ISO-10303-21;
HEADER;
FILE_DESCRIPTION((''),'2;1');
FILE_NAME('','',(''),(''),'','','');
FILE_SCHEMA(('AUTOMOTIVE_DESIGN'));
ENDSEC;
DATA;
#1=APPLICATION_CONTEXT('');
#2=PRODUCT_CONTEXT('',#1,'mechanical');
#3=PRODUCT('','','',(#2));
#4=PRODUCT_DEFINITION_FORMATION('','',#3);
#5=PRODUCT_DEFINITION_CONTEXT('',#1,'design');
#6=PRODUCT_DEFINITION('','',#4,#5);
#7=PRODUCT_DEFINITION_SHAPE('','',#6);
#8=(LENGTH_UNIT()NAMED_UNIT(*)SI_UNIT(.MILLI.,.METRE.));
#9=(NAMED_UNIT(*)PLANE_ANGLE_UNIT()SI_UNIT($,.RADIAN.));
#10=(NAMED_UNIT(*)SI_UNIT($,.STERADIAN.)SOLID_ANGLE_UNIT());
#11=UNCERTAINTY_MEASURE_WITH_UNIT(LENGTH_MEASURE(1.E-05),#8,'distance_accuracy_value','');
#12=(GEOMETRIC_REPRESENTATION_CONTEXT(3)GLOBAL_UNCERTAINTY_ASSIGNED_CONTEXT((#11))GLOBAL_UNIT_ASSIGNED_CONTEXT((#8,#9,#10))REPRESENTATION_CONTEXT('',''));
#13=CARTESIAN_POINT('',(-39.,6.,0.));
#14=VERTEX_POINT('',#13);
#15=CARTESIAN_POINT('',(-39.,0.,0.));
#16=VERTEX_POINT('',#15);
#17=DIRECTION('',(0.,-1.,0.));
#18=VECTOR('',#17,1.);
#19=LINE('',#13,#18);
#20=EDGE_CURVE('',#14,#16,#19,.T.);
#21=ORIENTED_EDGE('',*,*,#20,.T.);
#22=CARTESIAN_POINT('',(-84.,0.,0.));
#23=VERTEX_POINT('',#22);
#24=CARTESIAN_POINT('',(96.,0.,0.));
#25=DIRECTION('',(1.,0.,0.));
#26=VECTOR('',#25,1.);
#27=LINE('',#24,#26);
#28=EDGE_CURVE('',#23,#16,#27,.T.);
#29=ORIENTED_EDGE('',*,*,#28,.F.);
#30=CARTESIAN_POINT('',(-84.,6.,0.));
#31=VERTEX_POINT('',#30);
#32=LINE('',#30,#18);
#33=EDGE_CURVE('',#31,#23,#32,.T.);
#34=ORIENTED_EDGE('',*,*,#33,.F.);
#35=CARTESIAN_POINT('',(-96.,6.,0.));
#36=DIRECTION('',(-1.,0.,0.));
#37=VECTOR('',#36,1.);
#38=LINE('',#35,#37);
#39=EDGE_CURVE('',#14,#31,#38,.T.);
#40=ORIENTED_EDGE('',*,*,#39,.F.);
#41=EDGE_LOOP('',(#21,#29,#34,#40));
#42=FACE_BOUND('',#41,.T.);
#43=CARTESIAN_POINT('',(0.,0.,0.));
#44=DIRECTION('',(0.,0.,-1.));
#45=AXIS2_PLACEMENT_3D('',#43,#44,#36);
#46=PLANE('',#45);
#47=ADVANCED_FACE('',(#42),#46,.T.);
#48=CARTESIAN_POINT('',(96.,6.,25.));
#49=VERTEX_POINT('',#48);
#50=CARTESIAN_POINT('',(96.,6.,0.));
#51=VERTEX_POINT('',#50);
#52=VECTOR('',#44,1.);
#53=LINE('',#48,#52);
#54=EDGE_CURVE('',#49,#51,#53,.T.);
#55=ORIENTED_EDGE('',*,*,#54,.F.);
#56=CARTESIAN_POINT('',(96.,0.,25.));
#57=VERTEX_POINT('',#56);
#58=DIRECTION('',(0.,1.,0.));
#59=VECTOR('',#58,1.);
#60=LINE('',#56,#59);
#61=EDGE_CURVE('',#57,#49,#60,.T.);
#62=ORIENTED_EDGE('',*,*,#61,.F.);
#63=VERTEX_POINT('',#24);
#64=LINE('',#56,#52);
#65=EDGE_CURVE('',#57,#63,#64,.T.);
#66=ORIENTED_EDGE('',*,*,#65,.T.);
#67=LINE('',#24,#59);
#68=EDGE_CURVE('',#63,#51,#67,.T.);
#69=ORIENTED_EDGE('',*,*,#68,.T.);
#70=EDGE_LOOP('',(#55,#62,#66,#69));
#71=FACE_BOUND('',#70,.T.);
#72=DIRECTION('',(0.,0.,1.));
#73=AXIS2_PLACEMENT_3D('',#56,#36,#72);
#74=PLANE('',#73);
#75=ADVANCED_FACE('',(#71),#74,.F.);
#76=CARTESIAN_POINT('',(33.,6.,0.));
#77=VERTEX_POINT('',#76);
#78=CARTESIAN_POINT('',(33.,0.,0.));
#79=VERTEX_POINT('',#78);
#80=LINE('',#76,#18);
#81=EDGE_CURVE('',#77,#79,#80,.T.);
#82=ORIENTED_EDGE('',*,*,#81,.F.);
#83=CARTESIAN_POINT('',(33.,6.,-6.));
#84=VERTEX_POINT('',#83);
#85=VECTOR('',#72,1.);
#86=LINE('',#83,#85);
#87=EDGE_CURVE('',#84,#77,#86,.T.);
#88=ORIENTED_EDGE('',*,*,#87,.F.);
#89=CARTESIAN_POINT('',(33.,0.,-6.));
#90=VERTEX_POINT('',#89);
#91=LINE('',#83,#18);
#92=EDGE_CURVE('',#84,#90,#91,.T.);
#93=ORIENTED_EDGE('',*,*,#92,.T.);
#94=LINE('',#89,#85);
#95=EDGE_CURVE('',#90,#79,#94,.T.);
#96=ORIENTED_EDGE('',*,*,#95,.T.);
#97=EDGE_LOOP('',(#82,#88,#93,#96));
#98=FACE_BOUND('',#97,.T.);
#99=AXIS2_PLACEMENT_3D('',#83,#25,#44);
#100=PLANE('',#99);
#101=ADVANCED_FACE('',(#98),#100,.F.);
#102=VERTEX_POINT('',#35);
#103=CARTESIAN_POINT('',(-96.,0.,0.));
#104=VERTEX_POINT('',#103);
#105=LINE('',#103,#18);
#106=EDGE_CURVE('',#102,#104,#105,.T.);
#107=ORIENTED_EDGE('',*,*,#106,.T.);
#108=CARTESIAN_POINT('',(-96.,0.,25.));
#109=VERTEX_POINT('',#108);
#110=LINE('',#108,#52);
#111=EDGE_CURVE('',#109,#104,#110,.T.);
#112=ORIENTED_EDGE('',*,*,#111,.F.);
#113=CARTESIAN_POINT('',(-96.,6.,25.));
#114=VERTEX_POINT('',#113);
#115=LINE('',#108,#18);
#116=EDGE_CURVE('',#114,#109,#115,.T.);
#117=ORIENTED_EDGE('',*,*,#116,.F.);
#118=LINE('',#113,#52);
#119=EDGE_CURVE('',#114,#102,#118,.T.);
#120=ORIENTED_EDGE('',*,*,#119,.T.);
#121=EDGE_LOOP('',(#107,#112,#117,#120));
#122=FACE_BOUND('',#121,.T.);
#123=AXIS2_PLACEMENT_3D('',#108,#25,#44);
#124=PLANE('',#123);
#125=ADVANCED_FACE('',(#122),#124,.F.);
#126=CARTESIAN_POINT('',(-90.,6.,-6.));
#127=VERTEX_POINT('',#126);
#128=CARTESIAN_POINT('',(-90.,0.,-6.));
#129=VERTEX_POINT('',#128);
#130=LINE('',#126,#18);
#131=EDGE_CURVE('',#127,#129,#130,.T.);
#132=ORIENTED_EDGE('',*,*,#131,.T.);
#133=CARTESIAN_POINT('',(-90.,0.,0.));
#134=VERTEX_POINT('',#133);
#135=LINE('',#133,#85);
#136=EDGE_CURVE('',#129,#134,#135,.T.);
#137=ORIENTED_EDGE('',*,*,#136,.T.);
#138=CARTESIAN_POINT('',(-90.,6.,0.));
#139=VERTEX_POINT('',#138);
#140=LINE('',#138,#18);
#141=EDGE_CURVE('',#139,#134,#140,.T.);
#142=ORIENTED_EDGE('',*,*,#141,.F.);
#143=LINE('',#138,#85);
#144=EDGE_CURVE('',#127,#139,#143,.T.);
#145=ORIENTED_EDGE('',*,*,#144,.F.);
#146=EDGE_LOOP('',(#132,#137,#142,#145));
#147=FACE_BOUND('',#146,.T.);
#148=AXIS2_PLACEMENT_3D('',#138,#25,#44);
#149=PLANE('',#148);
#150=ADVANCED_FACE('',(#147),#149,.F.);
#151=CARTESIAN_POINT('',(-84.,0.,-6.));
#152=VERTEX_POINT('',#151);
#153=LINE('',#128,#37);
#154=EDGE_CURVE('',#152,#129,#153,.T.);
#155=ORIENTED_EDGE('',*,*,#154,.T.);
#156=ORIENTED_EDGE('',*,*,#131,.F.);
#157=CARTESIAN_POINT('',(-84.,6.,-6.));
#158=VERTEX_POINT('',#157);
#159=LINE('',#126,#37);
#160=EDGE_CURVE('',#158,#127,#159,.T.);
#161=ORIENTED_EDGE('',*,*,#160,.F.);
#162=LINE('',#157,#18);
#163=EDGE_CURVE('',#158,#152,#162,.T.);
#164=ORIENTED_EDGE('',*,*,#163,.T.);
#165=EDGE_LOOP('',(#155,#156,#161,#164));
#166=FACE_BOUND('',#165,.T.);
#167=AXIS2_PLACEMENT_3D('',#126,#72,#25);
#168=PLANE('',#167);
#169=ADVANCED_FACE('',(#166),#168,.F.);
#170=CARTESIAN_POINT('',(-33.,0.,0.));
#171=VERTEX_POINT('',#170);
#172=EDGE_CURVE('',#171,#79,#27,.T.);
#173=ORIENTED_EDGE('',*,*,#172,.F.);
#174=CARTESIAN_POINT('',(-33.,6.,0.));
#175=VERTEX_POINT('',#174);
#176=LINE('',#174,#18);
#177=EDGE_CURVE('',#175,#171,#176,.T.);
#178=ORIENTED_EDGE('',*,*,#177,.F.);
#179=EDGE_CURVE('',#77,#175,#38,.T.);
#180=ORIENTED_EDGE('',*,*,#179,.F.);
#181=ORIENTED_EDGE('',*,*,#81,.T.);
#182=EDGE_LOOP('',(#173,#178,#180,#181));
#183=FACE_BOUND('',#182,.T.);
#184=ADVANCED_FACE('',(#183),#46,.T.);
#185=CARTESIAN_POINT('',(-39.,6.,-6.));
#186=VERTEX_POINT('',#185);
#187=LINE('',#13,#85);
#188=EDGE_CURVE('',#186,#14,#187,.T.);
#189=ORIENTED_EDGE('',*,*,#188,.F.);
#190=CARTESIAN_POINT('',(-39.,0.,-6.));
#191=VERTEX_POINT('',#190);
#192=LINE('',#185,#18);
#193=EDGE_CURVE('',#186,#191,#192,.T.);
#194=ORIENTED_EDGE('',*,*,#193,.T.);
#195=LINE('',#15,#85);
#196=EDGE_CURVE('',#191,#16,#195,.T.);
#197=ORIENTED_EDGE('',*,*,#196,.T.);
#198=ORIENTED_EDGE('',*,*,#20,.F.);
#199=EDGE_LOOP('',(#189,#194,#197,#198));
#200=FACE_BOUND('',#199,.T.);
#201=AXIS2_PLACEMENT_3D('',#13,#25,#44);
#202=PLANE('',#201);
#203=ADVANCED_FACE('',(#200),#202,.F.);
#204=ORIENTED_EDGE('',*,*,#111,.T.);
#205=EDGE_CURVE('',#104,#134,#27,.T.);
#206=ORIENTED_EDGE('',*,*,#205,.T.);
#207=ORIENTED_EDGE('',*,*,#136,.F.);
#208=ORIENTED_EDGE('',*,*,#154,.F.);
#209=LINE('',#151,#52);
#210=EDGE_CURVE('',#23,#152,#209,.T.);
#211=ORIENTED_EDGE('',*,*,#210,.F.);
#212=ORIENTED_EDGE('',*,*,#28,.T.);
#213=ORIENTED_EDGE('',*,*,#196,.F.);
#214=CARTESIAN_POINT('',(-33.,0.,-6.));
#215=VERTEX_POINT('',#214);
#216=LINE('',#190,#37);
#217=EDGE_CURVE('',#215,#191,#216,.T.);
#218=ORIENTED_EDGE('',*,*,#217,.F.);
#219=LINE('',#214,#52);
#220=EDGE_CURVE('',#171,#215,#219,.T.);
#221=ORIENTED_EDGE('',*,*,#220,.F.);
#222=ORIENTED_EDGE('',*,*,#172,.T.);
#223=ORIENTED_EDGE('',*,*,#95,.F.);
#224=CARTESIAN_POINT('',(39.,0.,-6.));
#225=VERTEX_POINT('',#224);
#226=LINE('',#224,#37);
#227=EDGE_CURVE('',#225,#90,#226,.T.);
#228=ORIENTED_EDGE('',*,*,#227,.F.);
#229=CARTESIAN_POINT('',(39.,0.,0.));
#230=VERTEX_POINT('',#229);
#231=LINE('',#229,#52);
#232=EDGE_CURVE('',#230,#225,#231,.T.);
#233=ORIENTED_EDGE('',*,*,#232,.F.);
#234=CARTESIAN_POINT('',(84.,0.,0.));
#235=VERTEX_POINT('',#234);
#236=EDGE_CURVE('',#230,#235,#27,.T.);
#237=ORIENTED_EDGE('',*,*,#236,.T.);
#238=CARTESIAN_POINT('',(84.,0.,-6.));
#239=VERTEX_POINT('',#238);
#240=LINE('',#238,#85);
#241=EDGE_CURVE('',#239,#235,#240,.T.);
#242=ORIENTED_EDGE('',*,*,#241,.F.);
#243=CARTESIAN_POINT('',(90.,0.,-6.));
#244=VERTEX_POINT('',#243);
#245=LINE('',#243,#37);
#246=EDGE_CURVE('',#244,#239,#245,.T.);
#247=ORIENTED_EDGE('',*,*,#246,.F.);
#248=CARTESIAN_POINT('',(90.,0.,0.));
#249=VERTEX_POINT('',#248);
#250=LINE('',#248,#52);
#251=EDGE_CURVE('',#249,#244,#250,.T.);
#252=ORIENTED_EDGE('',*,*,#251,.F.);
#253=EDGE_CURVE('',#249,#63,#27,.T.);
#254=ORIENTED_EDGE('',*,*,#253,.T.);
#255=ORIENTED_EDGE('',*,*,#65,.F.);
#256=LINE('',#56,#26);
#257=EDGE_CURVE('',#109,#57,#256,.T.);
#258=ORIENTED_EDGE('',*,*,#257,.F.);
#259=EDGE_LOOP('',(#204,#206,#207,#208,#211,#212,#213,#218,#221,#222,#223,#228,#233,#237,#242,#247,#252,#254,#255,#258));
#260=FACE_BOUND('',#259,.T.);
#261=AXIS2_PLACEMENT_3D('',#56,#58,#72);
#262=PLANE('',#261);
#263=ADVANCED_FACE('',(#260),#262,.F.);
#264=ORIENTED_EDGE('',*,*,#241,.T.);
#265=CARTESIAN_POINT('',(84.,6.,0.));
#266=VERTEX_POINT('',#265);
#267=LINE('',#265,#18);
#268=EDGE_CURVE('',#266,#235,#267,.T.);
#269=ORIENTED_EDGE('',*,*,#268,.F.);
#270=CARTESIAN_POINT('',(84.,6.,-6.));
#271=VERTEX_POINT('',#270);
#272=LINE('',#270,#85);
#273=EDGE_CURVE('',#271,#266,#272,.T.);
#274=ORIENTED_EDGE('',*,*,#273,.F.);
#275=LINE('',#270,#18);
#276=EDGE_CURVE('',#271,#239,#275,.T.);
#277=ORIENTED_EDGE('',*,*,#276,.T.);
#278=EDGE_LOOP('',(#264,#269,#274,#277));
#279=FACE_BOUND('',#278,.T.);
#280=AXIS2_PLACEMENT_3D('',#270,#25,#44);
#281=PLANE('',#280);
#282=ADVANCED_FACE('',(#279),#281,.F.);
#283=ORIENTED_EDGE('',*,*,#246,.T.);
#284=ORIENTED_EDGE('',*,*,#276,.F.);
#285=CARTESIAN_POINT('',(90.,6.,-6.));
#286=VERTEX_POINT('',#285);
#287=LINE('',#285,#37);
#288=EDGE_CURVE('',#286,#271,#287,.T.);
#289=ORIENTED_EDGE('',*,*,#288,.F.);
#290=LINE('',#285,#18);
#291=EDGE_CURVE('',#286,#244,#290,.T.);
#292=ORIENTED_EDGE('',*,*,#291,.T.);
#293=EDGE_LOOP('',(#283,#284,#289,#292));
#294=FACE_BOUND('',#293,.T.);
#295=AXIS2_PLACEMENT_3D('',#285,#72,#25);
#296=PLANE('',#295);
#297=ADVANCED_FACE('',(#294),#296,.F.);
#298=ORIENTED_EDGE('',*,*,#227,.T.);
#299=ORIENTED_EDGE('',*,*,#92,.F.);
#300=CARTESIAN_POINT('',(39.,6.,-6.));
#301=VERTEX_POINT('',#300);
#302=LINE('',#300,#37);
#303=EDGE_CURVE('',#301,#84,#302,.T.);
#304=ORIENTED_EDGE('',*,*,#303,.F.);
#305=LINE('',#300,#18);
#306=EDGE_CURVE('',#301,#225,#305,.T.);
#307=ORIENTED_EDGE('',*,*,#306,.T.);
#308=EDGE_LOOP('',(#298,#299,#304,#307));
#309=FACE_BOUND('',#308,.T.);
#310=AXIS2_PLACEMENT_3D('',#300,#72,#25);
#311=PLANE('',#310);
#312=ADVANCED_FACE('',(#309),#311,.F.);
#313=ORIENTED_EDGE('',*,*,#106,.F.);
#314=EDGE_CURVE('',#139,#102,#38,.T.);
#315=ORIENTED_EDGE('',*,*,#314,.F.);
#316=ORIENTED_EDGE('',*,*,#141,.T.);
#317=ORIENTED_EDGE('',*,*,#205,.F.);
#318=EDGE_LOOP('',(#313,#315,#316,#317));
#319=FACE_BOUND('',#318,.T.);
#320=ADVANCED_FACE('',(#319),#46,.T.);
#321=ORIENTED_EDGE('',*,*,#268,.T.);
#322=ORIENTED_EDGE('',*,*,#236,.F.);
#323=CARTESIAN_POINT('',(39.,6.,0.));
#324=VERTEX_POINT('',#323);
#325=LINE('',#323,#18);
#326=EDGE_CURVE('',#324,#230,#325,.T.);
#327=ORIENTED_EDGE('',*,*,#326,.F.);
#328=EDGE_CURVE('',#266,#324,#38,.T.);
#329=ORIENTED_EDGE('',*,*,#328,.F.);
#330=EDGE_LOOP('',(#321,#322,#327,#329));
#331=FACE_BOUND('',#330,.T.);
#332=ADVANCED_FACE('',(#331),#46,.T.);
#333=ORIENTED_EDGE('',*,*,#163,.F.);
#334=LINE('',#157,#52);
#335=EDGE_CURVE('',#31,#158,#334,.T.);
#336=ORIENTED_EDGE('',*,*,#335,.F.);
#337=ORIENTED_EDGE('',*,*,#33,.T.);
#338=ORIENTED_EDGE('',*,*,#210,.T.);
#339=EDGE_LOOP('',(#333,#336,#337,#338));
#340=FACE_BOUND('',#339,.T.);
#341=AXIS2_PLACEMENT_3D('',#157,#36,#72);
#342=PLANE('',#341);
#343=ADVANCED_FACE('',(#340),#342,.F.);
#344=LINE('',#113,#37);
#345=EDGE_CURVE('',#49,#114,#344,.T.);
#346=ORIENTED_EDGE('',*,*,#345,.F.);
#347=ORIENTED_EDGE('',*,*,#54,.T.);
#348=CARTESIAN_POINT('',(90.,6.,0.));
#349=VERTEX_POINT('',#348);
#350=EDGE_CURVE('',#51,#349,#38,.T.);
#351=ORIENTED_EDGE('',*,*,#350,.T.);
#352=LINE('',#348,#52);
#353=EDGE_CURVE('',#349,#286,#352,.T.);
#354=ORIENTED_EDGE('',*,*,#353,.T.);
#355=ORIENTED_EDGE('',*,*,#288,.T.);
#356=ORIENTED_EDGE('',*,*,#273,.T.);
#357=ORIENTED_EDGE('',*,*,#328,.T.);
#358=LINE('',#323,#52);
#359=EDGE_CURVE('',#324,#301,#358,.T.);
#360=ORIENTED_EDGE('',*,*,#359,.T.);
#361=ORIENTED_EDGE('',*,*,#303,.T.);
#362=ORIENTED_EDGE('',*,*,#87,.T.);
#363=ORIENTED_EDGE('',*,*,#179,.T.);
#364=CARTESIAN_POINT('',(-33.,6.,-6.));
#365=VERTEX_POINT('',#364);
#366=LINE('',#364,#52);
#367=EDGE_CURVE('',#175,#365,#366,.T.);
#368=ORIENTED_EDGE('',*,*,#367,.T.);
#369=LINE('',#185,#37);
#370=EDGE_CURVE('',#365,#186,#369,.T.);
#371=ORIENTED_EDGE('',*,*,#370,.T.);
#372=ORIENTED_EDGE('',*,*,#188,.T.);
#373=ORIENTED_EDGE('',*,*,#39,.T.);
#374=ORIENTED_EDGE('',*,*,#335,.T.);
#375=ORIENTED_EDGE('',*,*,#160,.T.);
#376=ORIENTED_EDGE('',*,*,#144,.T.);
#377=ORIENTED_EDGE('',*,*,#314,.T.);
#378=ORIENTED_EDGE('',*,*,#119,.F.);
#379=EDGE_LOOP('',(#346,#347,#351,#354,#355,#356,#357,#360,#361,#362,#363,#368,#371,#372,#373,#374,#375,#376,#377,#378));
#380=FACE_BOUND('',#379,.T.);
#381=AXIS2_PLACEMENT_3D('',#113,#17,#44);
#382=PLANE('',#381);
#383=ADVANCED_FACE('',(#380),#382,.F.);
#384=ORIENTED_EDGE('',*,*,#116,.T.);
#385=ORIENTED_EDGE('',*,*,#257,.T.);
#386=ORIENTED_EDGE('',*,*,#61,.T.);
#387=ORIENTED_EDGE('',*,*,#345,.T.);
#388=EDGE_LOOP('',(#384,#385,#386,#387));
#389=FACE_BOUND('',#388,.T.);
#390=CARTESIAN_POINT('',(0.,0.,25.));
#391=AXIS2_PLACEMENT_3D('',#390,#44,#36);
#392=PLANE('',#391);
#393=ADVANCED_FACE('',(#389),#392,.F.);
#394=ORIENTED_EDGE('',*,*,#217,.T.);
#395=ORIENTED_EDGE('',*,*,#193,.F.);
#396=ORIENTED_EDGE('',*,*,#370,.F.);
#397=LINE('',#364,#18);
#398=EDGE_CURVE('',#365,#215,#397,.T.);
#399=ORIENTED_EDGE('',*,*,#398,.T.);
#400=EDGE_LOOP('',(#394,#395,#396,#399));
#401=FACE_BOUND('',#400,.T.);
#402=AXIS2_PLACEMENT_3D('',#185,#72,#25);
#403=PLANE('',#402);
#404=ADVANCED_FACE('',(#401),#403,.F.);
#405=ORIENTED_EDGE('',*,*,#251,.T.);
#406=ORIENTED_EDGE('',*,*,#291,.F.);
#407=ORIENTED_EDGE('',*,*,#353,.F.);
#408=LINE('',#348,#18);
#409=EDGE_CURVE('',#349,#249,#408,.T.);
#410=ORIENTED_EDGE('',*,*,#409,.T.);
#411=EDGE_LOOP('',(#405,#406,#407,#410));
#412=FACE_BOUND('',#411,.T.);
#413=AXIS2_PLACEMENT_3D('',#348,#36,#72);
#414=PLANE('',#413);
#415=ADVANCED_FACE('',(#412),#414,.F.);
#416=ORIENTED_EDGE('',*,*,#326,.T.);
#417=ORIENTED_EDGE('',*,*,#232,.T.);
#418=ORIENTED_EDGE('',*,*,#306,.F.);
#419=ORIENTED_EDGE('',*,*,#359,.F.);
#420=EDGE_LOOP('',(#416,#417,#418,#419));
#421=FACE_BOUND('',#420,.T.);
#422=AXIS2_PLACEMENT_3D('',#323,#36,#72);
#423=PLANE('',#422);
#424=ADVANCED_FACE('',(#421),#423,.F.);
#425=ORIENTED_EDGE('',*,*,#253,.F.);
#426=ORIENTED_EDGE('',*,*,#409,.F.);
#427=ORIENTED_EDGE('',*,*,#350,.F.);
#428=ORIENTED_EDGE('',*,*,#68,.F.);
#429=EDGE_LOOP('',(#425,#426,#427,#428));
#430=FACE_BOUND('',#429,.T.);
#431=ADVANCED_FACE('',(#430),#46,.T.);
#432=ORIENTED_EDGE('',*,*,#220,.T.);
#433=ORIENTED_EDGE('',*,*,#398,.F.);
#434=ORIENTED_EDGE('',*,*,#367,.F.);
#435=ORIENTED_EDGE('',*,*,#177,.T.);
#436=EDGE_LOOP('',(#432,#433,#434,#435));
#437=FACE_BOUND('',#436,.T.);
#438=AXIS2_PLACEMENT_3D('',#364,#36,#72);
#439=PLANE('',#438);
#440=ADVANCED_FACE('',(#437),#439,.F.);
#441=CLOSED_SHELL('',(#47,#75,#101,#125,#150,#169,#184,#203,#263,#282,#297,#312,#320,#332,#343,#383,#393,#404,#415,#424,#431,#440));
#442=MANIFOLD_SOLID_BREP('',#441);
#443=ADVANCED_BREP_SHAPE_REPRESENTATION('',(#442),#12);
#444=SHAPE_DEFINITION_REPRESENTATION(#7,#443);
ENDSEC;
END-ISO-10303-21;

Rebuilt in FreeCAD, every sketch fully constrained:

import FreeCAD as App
import Part
import Sketcher
from FreeCAD import Vector


def add_polygon(sketch, points):
    """Adds a closed chain of lines whose ends are joined by coincident constraints."""
    first, n = sketch.GeometryCount, len(points)
    for a, b in zip(points, points[1:] + points[:1]):
        sketch.addGeometry(Part.LineSegment(App.Vector(*a, 0), App.Vector(*b, 0)), False)
    for i in range(n):
        sketch.addConstraint(Sketcher.Constraint("Coincident", first + i, 2, first + (i + 1) % n, 1))

doc = App.newDocument("Part")
body = doc.addObject("PartDesign::Body", "Body")

# Sketch on XY plane
sketch1 = doc.addObject("Sketcher::SketchObject", "Sketch")
body.addObject(sketch1)
sketch1.AttachmentSupport = (doc.XY_Plane, [""])
sketch1.MapMode = "FlatFace"
add_polygon(sketch1, [(-96, 6), (-96, 0), (96, 0), (96, 6)])  # lines 0-3
sketch1.addConstraint([
    Sketcher.Constraint("Vertical", 0),
    Sketcher.Constraint("Horizontal", 1),
    Sketcher.Constraint("Vertical", 2),
    Sketcher.Constraint("Horizontal", 3),
    Sketcher.Constraint("Symmetric", 0, 2, 1, 2, -1, 1),
    Sketcher.Constraint("DistanceX", 1, 1, 1, 2, 192.0),
    Sketcher.Constraint("DistanceY", 0, 2, 0, 1, 6.0),
])
pad1 = doc.addObject("PartDesign::Pad", "Pad")
body.addObject(pad1)
pad1.Profile = sketch1
pad1.Length = 25

# Sketch on XZ plane
sketch2 = doc.addObject("Sketcher::SketchObject", "Sketch001")
body.addObject(sketch2)
sketch2.AttachmentSupport = (doc.XZ_Plane, [""])
sketch2.MapMode = "FlatFace"
add_polygon(sketch2, [(-90, -6), (-90, 0), (-84, 0), (-84, -6)])  # lines 0-3
add_polygon(sketch2, [(-39, -6), (-39, 0), (-33, 0), (-33, -6)])  # lines 4-7
add_polygon(sketch2, [(33, -6), (33, 0), (39, 0), (39, -6)])  # lines 8-11
add_polygon(sketch2, [(84, -6), (84, 0), (90, 0), (90, -6)])  # lines 12-15
sketch2.addConstraint([
    Sketcher.Constraint("Vertical", 0),
    Sketcher.Constraint("Horizontal", 1),
    Sketcher.Constraint("Vertical", 2),
    Sketcher.Constraint("Horizontal", 3),
    Sketcher.Constraint("Vertical", 4),
    Sketcher.Constraint("Horizontal", 5),
    Sketcher.Constraint("Vertical", 6),
    Sketcher.Constraint("Horizontal", 7),
    Sketcher.Constraint("Vertical", 8),
    Sketcher.Constraint("Horizontal", 9),
    Sketcher.Constraint("Vertical", 10),
    Sketcher.Constraint("Horizontal", 11),
    Sketcher.Constraint("Vertical", 12),
    Sketcher.Constraint("Horizontal", 13),
    Sketcher.Constraint("Vertical", 14),
    Sketcher.Constraint("Horizontal", 15),
    Sketcher.Constraint("Symmetric", 5, 2, 8, 2, -1, 1),
    Sketcher.Constraint("Symmetric", 1, 2, 12, 2, -1, 1),
    Sketcher.Constraint("Symmetric", 4, 2, 9, 2, -2),
    Sketcher.Constraint("Symmetric", 0, 2, 13, 2, -2),
    Sketcher.Constraint("Horizontal", 3, 2, 6, 2),
    Sketcher.Constraint("Horizontal", 7, 2, 10, 2),
    Sketcher.Constraint("Horizontal", 11, 2, 14, 2),
    Sketcher.Constraint("Equal", 3, 5),
    Sketcher.Constraint("Equal", 15, 0),
    Sketcher.Constraint("DistanceX", 1, 1, 1, 2, 6.0),
    Sketcher.Constraint("DistanceX", 0, 2, -1, 1, 90.0),
    Sketcher.Constraint("DistanceX", 4, 2, -1, 1, 39.0),
])
pad2 = doc.addObject("PartDesign::Pad", "Pad001")
body.addObject(pad2)
pad2.Profile = sketch2
pad2.Length = 6
pad2.Reversed = True

doc.recompute()
